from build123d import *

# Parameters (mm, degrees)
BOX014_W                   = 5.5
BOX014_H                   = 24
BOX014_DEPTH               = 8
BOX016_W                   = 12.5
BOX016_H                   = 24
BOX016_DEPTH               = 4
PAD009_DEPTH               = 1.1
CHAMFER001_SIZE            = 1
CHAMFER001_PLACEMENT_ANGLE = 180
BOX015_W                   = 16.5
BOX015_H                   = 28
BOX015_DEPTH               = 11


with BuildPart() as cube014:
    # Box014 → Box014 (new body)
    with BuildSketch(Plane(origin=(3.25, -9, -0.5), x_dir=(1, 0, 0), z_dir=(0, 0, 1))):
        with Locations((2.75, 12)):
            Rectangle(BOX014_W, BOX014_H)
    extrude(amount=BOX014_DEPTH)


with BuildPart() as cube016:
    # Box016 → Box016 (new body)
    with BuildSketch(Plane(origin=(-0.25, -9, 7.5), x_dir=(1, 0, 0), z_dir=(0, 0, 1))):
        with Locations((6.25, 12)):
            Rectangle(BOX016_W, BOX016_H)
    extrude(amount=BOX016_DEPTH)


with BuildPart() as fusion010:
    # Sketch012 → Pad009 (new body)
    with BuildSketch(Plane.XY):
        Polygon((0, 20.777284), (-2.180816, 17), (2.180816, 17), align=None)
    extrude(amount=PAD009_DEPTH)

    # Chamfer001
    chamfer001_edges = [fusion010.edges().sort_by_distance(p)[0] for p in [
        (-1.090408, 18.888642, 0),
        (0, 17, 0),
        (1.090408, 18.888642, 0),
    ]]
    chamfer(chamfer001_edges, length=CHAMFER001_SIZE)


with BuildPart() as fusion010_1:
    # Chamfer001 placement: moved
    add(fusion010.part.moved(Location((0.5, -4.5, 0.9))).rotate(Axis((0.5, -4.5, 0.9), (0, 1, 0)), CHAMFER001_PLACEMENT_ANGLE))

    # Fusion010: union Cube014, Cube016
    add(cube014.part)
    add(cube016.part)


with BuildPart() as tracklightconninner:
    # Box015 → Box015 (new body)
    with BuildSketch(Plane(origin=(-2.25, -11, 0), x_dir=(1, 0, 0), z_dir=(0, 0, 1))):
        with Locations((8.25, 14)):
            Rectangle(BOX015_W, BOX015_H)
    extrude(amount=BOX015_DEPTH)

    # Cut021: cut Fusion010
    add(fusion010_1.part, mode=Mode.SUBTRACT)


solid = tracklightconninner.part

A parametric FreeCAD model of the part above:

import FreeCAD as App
import Part
import Sketcher

V = App.Vector
Q = App.Units.Quantity


def edges_at(feature, points):
    """Names of the edges that pass closest to the given points."""
    edges = feature.Shape.Edges
    near = lambda p: min(range(len(edges)), key=lambda i: edges[i].distToShape(Part.Vertex(*p))[0])
    return sorted({f"Edge{near(p) + 1}" for p in points})

doc = App.newDocument("Part")
body = doc.addObject("PartDesign::Body", "Body")

# Sketch on XY plane
sketch1 = body.newObject("Sketcher::SketchObject", "Sketch")
sketch1.AttachmentSupport = (doc.getObject("XY_Plane"), [""])
sketch1.MapMode = "FlatFace"
sketch1.AttachmentOffset = App.Placement(V(0, 0, -0.5), App.Rotation())
sketch1.addGeometry([
    Part.LineSegment(V(3, 15, 0), V(3, -9, 0)),
    Part.LineSegment(V(3, -9, 0), V(9, -9, 0)),
    Part.LineSegment(V(9, -9, 0), V(9, 15, 0)),
    Part.LineSegment(V(9, 15, 0), V(3, 15, 0)),
], False)
sketch1.addConstraint([
    Sketcher.Constraint("Coincident", 0, 2, 1, 1),
    Sketcher.Constraint("Coincident", 1, 2, 2, 1),
    Sketcher.Constraint("Coincident", 2, 2, 3, 1),
    Sketcher.Constraint("Coincident", 3, 2, 0, 1),
    Sketcher.Constraint("Vertical", 0),
    Sketcher.Constraint("Horizontal", 1),
    Sketcher.Constraint("Vertical", 2),
    Sketcher.Constraint("Horizontal", 3),
    Sketcher.Constraint("DistanceY", 0, 2, 0, 1, Q("24 mm")),
    Sketcher.Constraint("DistanceX", 1, 1, 1, 2, Q("5.5 mm")),
    Sketcher.Constraint("DistanceY", 0, 2, -1, 1, Q("9 mm")),
    Sketcher.Constraint("DistanceX", -1, 1, 0, 2, Q("3.25 mm")),
])
pad1 = body.newObject("PartDesign::Pad", "Pad")
pad1.Profile = sketch1
pad1.Length = 8
body2 = doc.addObject("PartDesign::Body", "Body001")

# Sketch on XY plane
sketch2 = body2.newObject("Sketcher::SketchObject", "Sketch001")
sketch2.AttachmentSupport = (doc.getObject("XY_Plane001"), [""])
sketch2.MapMode = "FlatFace"
sketch2.AttachmentOffset = App.Placement(V(0, 0, 7.5), App.Rotation())
sketch2.addGeometry([
    Part.LineSegment(V(0, 15, 0), V(0, -9, 0)),
    Part.LineSegment(V(0, -9, 0), V(12, -9, 0)),
    Part.LineSegment(V(12, -9, 0), V(12, 15, 0)),
    Part.LineSegment(V(12, 15, 0), V(0, 15, 0)),
], False)
sketch2.addConstraint([
    Sketcher.Constraint("Coincident", 0, 2, 1, 1),
    Sketcher.Constraint("Coincident", 1, 2, 2, 1),
    Sketcher.Constraint("Coincident", 2, 2, 3, 1),
    Sketcher.Constraint("Coincident", 3, 2, 0, 1),
    Sketcher.Constraint("Vertical", 0),
    Sketcher.Constraint("Horizontal", 1),
    Sketcher.Constraint("Vertical", 2),
    Sketcher.Constraint("Horizontal", 3),
    Sketcher.Constraint("DistanceY", 0, 2, 0, 1, Q("24 mm")),
    Sketcher.Constraint("DistanceX", 1, 1, 1, 2, Q("12.5 mm")),
    Sketcher.Constraint("DistanceY", 0, 2, -1, 1, Q("9 mm")),
    Sketcher.Constraint("DistanceX", 0, 2, -1, 1, Q("0.25 mm")),
])
pad2 = body2.newObject("PartDesign::Pad", "Pad001")
pad2.Profile = sketch2
pad2.Length = 4
body3 = doc.addObject("PartDesign::Body", "Body002")

# Sketch on XY plane
sketch3 = body3.newObject("Sketcher::SketchObject", "Sketch002")
sketch3.AttachmentSupport = (doc.getObject("XY_Plane002"), [""])
sketch3.MapMode = "FlatFace"
sketch3.addGeometry([
    Part.LineSegment(V(0, 20.8, 0), V(-2.2, 17, 0)),
    Part.LineSegment(V(-2.2, 17, 0), V(2.2, 17, 0)),
    Part.LineSegment(V(2.2, 17, 0), V(0, 20.8, 0)),
], False)
sketch3.addConstraint([
    Sketcher.Constraint("Coincident", 0, 2, 1, 1),
    Sketcher.Constraint("Coincident", 1, 2, 2, 1),
    Sketcher.Constraint("Coincident", 2, 2, 0, 1),
    Sketcher.Constraint("Horizontal", 1),
    Sketcher.Constraint("PointOnObject", 2, 2, -2),
    Sketcher.Constraint("Equal", 0, 2),
    Sketcher.Constraint("Angle", 0, Q("-120.000001 deg")),
    Sketcher.Constraint("DistanceY", -1, 1, 0, 2, Q("17 mm")),
    Sketcher.Constraint("Distance", 0, Q("4.361632 mm")),
])
pad3 = body3.newObject("PartDesign::Pad", "Pad002")
pad3.Profile = sketch3
pad3.Length = 1.1
doc.recompute()

chamfer = body3.newObject("PartDesign::Chamfer", "Chamfer")
chamfer.Base = (pad3, edges_at(pad3, [(-1.09, 18.889, 0), (0, 17, 0), (1.09, 18.889, 0)]))
chamfer.Size = 1
body4 = doc.addObject("PartDesign::Body", "Body003")
body4.AllowCompound = True
doc.recompute()

body3.Placement = App.Placement(V(0.5, -4.5, 0.9), App.Rotation(V(0, 1, 0), 180))
boolean = body4.newObject("PartDesign::Boolean", "Boolean")
boolean.Type = "Fuse"
boolean.addObjects([body3])
doc.recompute()

boolean2 = body4.newObject("PartDesign::Boolean", "Boolean001")
boolean2.Type = "Fuse"
boolean2.addObjects([body])
doc.recompute()

boolean3 = body4.newObject("PartDesign::Boolean", "Boolean002")
boolean3.Type = "Fuse"
boolean3.addObjects([body2])
body5 = doc.addObject("PartDesign::Body", "Body004")

# Sketch on XY plane
sketch4 = body5.newObject("Sketcher::SketchObject", "Sketch003")
sketch4.AttachmentSupport = (doc.getObject("XY_Plane004"), [""])
sketch4.MapMode = "FlatFace"
sketch4.addGeometry([
    Part.LineSegment(V(-2, 17, 0), V(-2, -11, 0)),
    Part.LineSegment(V(-2, -11, 0), V(14, -11, 0)),
    Part.LineSegment(V(14, -11, 0), V(14, 17, 0)),
    Part.LineSegment(V(14, 17, 0), V(-2, 17, 0)),
], False)
sketch4.addConstraint([
    Sketcher.Constraint("Coincident", 0, 2, 1, 1),
    Sketcher.Constraint("Coincident", 1, 2, 2, 1),
    Sketcher.Constraint("Coincident", 2, 2, 3, 1),
    Sketcher.Constraint("Coincident", 3, 2, 0, 1),
    Sketcher.Constraint("Vertical", 0),
    Sketcher.Constraint("Horizontal", 1),
    Sketcher.Constraint("Vertical", 2),
    Sketcher.Constraint("Horizontal", 3),
    Sketcher.Constraint("DistanceY", 0, 2, 0, 1, Q("28 mm")),
    Sketcher.Constraint("DistanceX", 1, 1, 1, 2, Q("16.5 mm")),
    Sketcher.Constraint("DistanceY", 0, 2, -1, 1, Q("11 mm")),
    Sketcher.Constraint("DistanceX", 0, 2, -1, 1, Q("2.25 mm")),
])
pad4 = body5.newObject("PartDesign::Pad", "Pad003")
pad4.Profile = sketch4
pad4.Length = 11
doc.recompute()

boolean4 = body5.newObject("PartDesign::Boolean", "Boolean003")
boolean4.Type = "Cut"
boolean4.addObjects([body4])

doc.recompute()
